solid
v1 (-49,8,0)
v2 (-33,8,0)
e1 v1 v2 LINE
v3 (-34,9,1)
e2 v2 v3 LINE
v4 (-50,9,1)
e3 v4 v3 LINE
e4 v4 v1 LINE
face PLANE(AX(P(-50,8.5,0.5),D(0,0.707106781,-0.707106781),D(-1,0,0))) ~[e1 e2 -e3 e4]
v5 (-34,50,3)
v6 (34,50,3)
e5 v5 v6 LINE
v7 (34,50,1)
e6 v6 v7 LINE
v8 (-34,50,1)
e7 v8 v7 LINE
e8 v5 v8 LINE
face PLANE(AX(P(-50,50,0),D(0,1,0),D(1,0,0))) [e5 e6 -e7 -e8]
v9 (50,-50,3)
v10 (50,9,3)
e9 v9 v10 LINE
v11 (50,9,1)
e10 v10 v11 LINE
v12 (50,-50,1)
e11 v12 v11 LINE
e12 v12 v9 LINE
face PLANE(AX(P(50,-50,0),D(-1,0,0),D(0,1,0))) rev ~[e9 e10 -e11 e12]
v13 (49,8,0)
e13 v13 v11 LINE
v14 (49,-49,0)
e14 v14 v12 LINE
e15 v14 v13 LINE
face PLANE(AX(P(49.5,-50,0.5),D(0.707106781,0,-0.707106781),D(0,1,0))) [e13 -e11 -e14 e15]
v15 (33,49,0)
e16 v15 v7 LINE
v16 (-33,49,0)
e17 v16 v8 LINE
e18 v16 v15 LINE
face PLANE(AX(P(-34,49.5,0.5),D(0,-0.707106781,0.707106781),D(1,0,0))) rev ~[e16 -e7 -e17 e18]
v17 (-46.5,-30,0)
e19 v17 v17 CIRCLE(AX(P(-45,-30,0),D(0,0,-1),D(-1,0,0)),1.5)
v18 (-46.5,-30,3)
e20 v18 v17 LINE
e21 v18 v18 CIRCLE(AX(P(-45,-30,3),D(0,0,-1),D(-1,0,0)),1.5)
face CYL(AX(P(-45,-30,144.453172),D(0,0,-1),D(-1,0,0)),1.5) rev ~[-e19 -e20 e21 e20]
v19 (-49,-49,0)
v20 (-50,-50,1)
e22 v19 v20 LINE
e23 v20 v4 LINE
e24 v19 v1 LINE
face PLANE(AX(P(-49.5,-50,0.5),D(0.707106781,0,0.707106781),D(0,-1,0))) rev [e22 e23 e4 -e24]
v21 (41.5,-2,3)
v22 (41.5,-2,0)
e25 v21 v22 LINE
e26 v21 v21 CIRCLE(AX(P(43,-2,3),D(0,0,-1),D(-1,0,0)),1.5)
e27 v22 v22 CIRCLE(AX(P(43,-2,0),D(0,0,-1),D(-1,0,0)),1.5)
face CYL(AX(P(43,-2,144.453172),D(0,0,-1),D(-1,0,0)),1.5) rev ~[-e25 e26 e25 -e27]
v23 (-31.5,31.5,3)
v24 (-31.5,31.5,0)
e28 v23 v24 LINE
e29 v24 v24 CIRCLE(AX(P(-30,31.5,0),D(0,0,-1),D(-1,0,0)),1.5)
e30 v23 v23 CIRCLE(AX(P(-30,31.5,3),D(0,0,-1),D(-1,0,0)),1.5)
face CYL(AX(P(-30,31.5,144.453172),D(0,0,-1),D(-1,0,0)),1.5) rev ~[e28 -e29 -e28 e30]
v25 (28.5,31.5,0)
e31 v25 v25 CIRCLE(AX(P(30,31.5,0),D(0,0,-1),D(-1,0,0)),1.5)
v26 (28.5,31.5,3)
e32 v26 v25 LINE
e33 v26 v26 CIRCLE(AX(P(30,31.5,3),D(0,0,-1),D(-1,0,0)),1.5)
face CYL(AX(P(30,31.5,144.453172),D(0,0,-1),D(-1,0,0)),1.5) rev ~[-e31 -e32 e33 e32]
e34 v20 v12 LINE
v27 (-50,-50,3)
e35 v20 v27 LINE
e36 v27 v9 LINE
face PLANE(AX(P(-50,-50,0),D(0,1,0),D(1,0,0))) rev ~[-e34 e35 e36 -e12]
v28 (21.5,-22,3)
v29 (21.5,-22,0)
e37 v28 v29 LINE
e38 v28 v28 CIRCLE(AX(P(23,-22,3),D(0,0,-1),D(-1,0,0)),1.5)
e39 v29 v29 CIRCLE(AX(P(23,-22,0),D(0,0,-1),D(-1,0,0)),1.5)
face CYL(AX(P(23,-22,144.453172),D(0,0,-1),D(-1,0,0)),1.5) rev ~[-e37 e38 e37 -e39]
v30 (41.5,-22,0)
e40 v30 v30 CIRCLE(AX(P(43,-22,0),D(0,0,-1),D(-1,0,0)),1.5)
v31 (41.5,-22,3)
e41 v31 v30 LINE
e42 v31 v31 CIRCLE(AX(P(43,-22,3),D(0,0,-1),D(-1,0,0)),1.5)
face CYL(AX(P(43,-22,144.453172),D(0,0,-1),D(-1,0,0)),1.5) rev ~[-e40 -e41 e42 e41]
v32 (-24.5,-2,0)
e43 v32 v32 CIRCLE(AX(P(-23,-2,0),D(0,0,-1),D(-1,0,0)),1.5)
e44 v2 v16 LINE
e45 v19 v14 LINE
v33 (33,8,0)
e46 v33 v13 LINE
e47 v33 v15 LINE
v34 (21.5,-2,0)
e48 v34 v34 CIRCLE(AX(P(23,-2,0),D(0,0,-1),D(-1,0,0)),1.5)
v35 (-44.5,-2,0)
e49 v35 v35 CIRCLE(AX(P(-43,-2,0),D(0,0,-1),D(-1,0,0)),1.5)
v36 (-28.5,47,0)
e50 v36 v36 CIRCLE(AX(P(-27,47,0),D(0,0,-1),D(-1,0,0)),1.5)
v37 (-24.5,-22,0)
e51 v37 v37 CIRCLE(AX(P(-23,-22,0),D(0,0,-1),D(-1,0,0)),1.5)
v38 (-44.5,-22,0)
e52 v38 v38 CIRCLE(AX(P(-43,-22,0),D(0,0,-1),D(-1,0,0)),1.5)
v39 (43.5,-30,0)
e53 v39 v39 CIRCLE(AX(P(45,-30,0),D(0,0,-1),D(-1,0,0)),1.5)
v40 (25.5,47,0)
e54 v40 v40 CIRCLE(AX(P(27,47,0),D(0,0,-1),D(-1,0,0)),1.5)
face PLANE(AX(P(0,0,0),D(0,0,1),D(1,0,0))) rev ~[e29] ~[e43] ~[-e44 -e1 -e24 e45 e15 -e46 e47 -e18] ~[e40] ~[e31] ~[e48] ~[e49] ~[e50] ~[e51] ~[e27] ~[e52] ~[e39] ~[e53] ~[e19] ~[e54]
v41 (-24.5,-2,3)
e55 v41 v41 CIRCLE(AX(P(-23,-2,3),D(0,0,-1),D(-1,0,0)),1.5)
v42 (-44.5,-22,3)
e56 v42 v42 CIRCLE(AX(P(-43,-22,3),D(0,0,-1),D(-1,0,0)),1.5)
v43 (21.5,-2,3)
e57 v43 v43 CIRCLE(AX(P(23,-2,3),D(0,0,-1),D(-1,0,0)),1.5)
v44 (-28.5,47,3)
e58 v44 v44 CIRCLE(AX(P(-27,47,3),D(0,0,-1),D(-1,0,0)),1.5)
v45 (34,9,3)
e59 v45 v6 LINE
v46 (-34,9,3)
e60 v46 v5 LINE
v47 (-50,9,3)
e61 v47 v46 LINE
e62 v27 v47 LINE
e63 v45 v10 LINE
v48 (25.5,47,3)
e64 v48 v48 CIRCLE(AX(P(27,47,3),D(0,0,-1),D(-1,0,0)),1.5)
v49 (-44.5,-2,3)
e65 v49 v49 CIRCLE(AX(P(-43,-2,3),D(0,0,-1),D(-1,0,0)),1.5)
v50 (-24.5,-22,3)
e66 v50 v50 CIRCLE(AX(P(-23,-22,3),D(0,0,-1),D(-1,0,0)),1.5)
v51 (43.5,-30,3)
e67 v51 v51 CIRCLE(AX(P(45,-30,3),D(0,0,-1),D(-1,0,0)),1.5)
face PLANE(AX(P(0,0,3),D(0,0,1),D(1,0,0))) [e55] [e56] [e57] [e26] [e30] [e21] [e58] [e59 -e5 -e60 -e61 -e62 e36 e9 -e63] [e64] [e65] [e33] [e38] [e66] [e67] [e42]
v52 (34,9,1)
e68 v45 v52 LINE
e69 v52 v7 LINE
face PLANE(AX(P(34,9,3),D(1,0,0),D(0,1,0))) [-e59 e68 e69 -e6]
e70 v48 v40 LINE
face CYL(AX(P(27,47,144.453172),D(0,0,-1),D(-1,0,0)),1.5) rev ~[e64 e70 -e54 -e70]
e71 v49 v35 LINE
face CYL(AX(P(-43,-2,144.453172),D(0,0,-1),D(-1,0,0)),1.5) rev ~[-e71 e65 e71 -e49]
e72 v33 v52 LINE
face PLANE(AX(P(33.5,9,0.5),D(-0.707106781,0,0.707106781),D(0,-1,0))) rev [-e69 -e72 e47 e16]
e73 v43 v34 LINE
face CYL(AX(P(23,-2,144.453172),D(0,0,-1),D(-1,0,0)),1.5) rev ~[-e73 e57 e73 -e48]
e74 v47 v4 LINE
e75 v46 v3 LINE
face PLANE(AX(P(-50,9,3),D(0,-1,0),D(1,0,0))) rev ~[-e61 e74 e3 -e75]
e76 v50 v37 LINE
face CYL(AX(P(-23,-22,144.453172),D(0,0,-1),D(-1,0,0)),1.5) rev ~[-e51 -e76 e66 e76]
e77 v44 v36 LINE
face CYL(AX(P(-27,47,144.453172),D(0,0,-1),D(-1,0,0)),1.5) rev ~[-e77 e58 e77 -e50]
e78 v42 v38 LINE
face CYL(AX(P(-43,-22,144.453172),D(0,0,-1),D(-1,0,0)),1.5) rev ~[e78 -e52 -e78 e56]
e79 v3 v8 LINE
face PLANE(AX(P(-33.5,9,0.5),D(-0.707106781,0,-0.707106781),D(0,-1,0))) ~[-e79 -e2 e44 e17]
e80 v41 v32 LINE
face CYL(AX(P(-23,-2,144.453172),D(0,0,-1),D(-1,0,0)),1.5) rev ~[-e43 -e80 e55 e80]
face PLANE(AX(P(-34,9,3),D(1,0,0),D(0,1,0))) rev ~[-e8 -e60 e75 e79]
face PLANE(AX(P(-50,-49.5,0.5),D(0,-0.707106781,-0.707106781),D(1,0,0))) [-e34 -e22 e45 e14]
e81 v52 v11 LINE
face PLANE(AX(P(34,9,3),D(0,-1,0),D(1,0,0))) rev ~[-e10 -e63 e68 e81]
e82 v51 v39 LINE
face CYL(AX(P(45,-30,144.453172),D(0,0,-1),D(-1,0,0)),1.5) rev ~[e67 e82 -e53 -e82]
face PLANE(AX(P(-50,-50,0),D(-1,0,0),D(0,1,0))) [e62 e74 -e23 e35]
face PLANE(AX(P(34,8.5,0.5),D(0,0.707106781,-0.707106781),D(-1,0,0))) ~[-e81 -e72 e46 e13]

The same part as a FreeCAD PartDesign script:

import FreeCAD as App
import Part
import Sketcher
from FreeCAD import Vector
Q = App.Units.Quantity


def edges_at(feature, points):
    """Names of the edges that pass closest to the given points."""
    edges = feature.Shape.Edges
    near = lambda p: min(range(len(edges)), key=lambda i: edges[i].distToShape(Part.Vertex(*p))[0])
    return sorted({f"Edge{near(p) + 1}" for p in points})


def add_polygon(sketch, points):
    """Adds a closed chain of lines whose ends are joined by coincident constraints."""
    first, n = sketch.GeometryCount, len(points)
    for a, b in zip(points, points[1:] + points[:1]):
        sketch.addGeometry(Part.LineSegment(App.Vector(*a, 0), App.Vector(*b, 0)), False)
    for i in range(n):
        sketch.addConstraint(Sketcher.Constraint("Coincident", first + i, 2, first + (i + 1) % n, 1))

doc = App.newDocument("Part")
params = doc.addObject("Spreadsheet::Sheet", "Params")
for row, (alias, value) in enumerate([
    ("sketch1_width", "100 mm"),
    ("pad1_length", "3 mm"),
    ("sketch2_diameter", "3 mm"),
    ("hole_diameter", "3 mm"),
    ("sketch3_width", "16 mm"),
    ("sketch3_height", "41 mm"),
    ("pocket1_length", "3 mm"),
    ("sketch4_diameter", "3 mm"),
    ("hole2_diameter", "3 mm"),
    ("chamfer_size", "1 mm"),
    ("sketch5_diameter", "3 mm"),
    ("hole3_diameter", "3 mm"),
], start=1):
    params.set(f"A{row}", alias)
    params.set(f"B{row}", "=" + value)
    params.setAlias(f"B{row}", alias)

body = doc.addObject("PartDesign::Body", "Body")

# Sketch on XY plane
sketch1 = body.newObject("Sketcher::SketchObject", "Sketch")
sketch1.AttachmentSupport = (doc.getObject("XY_Plane"), [""])
sketch1.MapMode = "FlatFace"
add_polygon(sketch1, [(-50, 50), (-50, -50), (50, -50), (50, 50)])  # lines 0-3
sketch1.addConstraint([
    Sketcher.Constraint("Vertical", 0),
    Sketcher.Constraint("Horizontal", 1),
    Sketcher.Constraint("Vertical", 2),
    Sketcher.Constraint("Horizontal", 3),
    Sketcher.Constraint("Symmetric", 0, 2, 2, 2, -1, 1),
    Sketcher.Constraint("Equal", 3, 0),
    Sketcher.Constraint("DistanceX", 1, 1, 1, 2, Q("100 mm")),
])
sketch1.setExpression("Constraints[10]", "Params.sketch1_width")
pad1 = body.newObject("PartDesign::Pad", "Pad")
pad1.Profile = sketch1
pad1.setExpression("Length", "Params.pad1_length")

# Sketch on XY plane
sketch2 = body.newObject("Sketcher::SketchObject", "Sketch001")
sketch2.AttachmentSupport = (doc.getObject("XY_Plane"), [""])
sketch2.MapMode = "FlatFace"
sketch2.AttachmentOffset = App.Placement(Vector(0, 0, 3), App.Rotation())
sketch2.addGeometry([
    Part.Circle(Vector(-30, 31.5, 0), Vector(0, 0, 1), 1.5),
    Part.Circle(Vector(30, 31.5, 0), Vector(0, 0, 1), 1.5),
], False)
sketch2.addConstraint([
    Sketcher.Constraint("Equal", 0, 1),
    Sketcher.Constraint("Symmetric", 0, 3, 1, 3, -2),
    Sketcher.Constraint("Diameter", 0, Q("3 mm")),
    Sketcher.Constraint("DistanceX", 0, 3, -1, 1, Q("30 mm")),
    Sketcher.Constraint("DistanceY", -1, 1, 0, 3, Q("31.5 mm")),
])
sketch2.setExpression("Constraints[2]", "Params.sketch2_diameter")
doc.recompute()
hole = body.newObject("PartDesign::Hole", "Hole")
hole.Profile = sketch2
hole.ThreadType = "None"
hole.setExpression("Diameter", "Params.hole_diameter")
hole.DepthType = "ThroughAll"

# Sketch on XY plane
sketch3 = body.newObject("Sketcher::SketchObject", "Sketch002")
sketch3.AttachmentSupport = (doc.getObject("XY_Plane"), [""])
sketch3.MapMode = "FlatFace"
sketch3.AttachmentOffset = App.Placement(Vector(0, 0, 3), App.Rotation())
add_polygon(sketch3, [(-50, 50), (-50, 9), (-34, 9), (-34, 50)])  # lines 0-3
add_polygon(sketch3, [(34, 50), (34, 9), (50, 9), (50, 50)])  # lines 4-7
sketch3.addConstraint([
    Sketcher.Constraint("Vertical", 0),
    Sketcher.Constraint("Horizontal", 1),
    Sketcher.Constraint("Vertical", 2),
    Sketcher.Constraint("Horizontal", 3),
    Sketcher.Constraint("Vertical", 4),
    Sketcher.Constraint("Horizontal", 5),
    Sketcher.Constraint("Vertical", 6),
    Sketcher.Constraint("Horizontal", 7),
    Sketcher.Constraint("Symmetric", 1, 2, 4, 2, -2),
    Sketcher.Constraint("Symmetric", 3, 2, 6, 2, -2),
    Sketcher.Constraint("DistanceX", 1, 1, 1, 2, Q("16 mm")),
    Sketcher.Constraint("DistanceY", 0, 2, 0, 1, Q("41 mm")),
    Sketcher.Constraint("DistanceX", 0, 2, -1, 1, Q("50 mm")),
    Sketcher.Constraint("DistanceY", -1, 1, 0, 2, Q("9 mm")),
])
sketch3.setExpression("Constraints[18]", "Params.sketch3_width")
sketch3.setExpression("Constraints[19]", "Params.sketch3_height")
pocket1 = body.newObject("PartDesign::Pocket", "Pocket")
pocket1.Profile = sketch3
pocket1.setExpression("Length", "Params.pocket1_length")

# Sketch on XY plane
sketch4 = body.newObject("Sketcher::SketchObject", "Sketch003")
sketch4.AttachmentSupport = (doc.getObject("XY_Plane"), [""])
sketch4.MapMode = "FlatFace"
sketch4.AttachmentOffset = App.Placement(Vector(0, 0, 3), App.Rotation())
sketch4.addGeometry([
    Part.Circle(Vector(-43, -2, 0), Vector(0, 0, 1), 1.5),  # 0
    Part.Circle(Vector(-23, -2, 0), Vector(0, 0, 1), 1.5),  # 1
    Part.Circle(Vector(-23, -22, 0), Vector(0, 0, 1), 1.5),  # 2
    Part.Circle(Vector(-43, -22, 0), Vector(0, 0, 1), 1.5),  # 3
    Part.Circle(Vector(23, -2, 0), Vector(0, 0, 1), 1.5),  # 4
    Part.Circle(Vector(43, -2, 0), Vector(0, 0, 1), 1.5),  # 5
    Part.Circle(Vector(43, -22, 0), Vector(0, 0, 1), 1.5),  # 6
    Part.Circle(Vector(23, -22, 0), Vector(0, 0, 1), 1.5),  # 7
], False)
sketch4.addConstraint([
    Sketcher.Constraint("Equal", 0, 1),
    Sketcher.Constraint("Equal", 1, 2),
    Sketcher.Constraint("Equal", 2, 3),
    Sketcher.Constraint("Equal", 3, 4),
    Sketcher.Constraint("Equal", 4, 5),
    Sketcher.Constraint("Equal", 5, 6),
    Sketcher.Constraint("Equal", 6, 7),
    Sketcher.Constraint("Symmetric", 1, 3, 4, 3, -2),
    Sketcher.Constraint("Symmetric", 0, 3, 5, 3, -2),
    Sketcher.Constraint("Symmetric", 3, 3, 6, 3, -2),
    Sketcher.Constraint("Symmetric", 2, 3, 7, 3, -2),
    Sketcher.Constraint("Horizontal", 0, 3, 1, 3),
    Sketcher.Constraint("Horizontal", 2, 3, 3, 3),
    Sketcher.Constraint("Vertical", 1, 3, 2, 3),
    Sketcher.Constraint("Vertical", 0, 3, 3, 3),
    Sketcher.Constraint("Diameter", 0, Q("3 mm")),
    Sketcher.Constraint("DistanceX", 0, 3, -1, 1, Q("43 mm")),
    Sketcher.Constraint("DistanceY", 0, 3, -1, 1, Q("2 mm")),
    Sketcher.Constraint("DistanceX", 1, 3, -1, 1, Q("23 mm")),
    Sketcher.Constraint("DistanceY", 2, 3, -1, 1, Q("22 mm")),
])
sketch4.setExpression("Constraints[15]", "Params.sketch4_diameter")
doc.recompute()
hole2 = body.newObject("PartDesign::Hole", "Hole001")
hole2.Profile = sketch4
hole2.ThreadType = "None"
hole2.setExpression("Diameter", "Params.hole2_diameter")
hole2.DepthType = "ThroughAll"
doc.recompute()

chamfer = body.newObject("PartDesign::Chamfer", "Chamfer")
chamfer.Base = (hole2, edges_at(hole2, [
    (0, -50, 0),
    (-50, -20.5, 0),
    (-42, 9, 0),
    (-34, 29.5, 0),
    (0, 50, 0),
    (34, 29.5, 0),
    (42, 9, 0),
    (50, -20.5, 0),
]))
chamfer.setExpression("Size", "Params.chamfer_size")

# Sketch on XY plane
sketch5 = body.newObject("Sketcher::SketchObject", "Sketch004")
sketch5.AttachmentSupport = (doc.getObject("XY_Plane"), [""])
sketch5.MapMode = "FlatFace"
sketch5.AttachmentOffset = App.Placement(Vector(0, 0, 3), App.Rotation())
sketch5.addGeometry([
    Part.Circle(Vector(-45, -30, 0), Vector(0, 0, 1), 1.5),
    Part.Circle(Vector(45, -30, 0), Vector(0, 0, 1), 1.5),
    Part.Circle(Vector(-27, 47, 0), Vector(0, 0, 1), 1.5),
    Part.Circle(Vector(27, 47, 0), Vector(0, 0, 1), 1.5),
], False)
sketch5.addConstraint([
    Sketcher.Constraint("Equal", 0, 1),
    Sketcher.Constraint("Equal", 1, 2),
    Sketcher.Constraint("Equal", 2, 3),
    Sketcher.Constraint("Symmetric", 0, 3, 1, 3, -2),
    Sketcher.Constraint("Symmetric", 2, 3, 3, 3, -2),
    Sketcher.Constraint("Diameter", 0, Q("3 mm")),
    Sketcher.Constraint("DistanceX", 0, 3, -1, 1, Q("45 mm")),
    Sketcher.Constraint("DistanceY", 0, 3, -1, 1, Q("30 mm")),
    Sketcher.Constraint("DistanceX", 2, 3, -1, 1, Q("27 mm")),
    Sketcher.Constraint("DistanceY", -1, 1, 2, 3, Q("47 mm")),
])
sketch5.setExpression("Constraints[5]", "Params.sketch5_diameter")
doc.recompute()
hole3 = body.newObject("PartDesign::Hole", "Hole002")
hole3.Profile = sketch5
hole3.ThreadType = "None"
hole3.setExpression("Diameter", "Params.hole3_diameter")
hole3.DepthType = "ThroughAll"

doc.recompute()
